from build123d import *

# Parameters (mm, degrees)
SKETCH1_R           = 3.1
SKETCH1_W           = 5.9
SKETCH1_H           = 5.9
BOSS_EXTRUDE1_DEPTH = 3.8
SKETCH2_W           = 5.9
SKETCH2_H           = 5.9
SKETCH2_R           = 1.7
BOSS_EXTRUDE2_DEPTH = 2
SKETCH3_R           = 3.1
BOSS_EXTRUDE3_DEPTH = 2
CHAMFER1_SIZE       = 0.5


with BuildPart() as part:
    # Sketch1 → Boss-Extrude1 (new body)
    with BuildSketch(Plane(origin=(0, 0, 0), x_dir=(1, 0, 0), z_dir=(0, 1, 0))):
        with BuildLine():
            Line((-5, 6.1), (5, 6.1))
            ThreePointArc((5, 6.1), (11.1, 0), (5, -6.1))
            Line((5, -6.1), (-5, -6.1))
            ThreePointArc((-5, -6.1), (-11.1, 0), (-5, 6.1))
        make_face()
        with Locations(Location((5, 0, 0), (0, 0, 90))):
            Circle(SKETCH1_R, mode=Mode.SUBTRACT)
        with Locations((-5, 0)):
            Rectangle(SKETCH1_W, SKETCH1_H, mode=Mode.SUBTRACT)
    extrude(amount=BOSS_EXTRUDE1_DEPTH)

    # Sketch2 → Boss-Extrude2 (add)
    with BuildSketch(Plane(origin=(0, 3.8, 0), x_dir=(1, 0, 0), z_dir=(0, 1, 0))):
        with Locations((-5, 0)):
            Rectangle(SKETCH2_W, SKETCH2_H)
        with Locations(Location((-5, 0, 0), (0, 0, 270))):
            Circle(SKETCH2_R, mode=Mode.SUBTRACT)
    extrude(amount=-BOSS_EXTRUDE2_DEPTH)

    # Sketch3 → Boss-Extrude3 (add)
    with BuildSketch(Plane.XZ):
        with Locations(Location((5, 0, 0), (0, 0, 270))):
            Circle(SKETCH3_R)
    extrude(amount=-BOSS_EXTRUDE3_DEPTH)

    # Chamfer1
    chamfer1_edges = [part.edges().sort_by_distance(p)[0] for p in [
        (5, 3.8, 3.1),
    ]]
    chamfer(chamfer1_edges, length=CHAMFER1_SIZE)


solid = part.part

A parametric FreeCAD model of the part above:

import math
import FreeCAD as App
import Part
import Sketcher
from FreeCAD import Vector
Q = App.Units.Quantity


def edges_at(feature, points):
    """Names of the edges that pass closest to the given points."""
    edges = feature.Shape.Edges
    near = lambda p: min(range(len(edges)), key=lambda i: edges[i].distToShape(Part.Vertex(*p))[0])
    return sorted({f"Edge{near(p) + 1}" for p in points})

doc = App.newDocument("Part")
body = doc.addObject("PartDesign::Body", "Body")

sketch1 = body.newObject("Sketcher::SketchObject", "Sketch")
sketch1.AttachmentSupport = (doc.getObject("XZ_Plane"), [""])
sketch1.MapMode = "FlatFace"
sketch1.addGeometry(Part.LineSegment(Vector(5, -6.1, 0), Vector(-5, -6.1, 0)), False)
sketch1.addGeometry(Part.ArcOfCircle(Part.Circle(Vector(-5, 0, 0), Vector(0, 0, 1), 6.1), math.radians(90), math.radians(270)), False)
sketch1.addGeometry(Part.LineSegment(Vector(-5, 6.1, 0), Vector(5, 6.1, 0)), False)
sketch1.addGeometry(Part.ArcOfCircle(Part.Circle(Vector(5, 0, 0), Vector(0, 0, 1), 6.1), math.radians(-90), math.radians(90)), False)
sketch1.addGeometry(Part.Circle(Vector(5, 0, 0), Vector(0, 0, 1), 3.1), False)
sketch1.addGeometry(Part.LineSegment(Vector(-8, 3, 0), Vector(-8, -3, 0)), False)
sketch1.addGeometry(Part.LineSegment(Vector(-8, -3, 0), Vector(-2, -3, 0)), False)
sketch1.addGeometry(Part.LineSegment(Vector(-2, -3, 0), Vector(-2, 3, 0)), False)
sketch1.addGeometry(Part.LineSegment(Vector(-2, 3, 0), Vector(-8, 3, 0)), False)
sketch1.addConstraint(Sketcher.Constraint("Tangent", 0, 2, 1, 2))
sketch1.addConstraint(Sketcher.Constraint("Tangent", 1, 1, 2, 1))
sketch1.addConstraint(Sketcher.Constraint("Tangent", 2, 2, 3, 2))
sketch1.addConstraint(Sketcher.Constraint("Tangent", 3, 1, 0, 1))
sketch1.addConstraint(Sketcher.Constraint("Coincident", 5, 2, 6, 1))
sketch1.addConstraint(Sketcher.Constraint("Coincident", 6, 2, 7, 1))
sketch1.addConstraint(Sketcher.Constraint("Coincident", 7, 2, 8, 1))
sketch1.addConstraint(Sketcher.Constraint("Coincident", 8, 2, 5, 1))
sketch1.addConstraint(Sketcher.Constraint("Horizontal", 0))
sketch1.addConstraint(Sketcher.Constraint("Horizontal", 2))
sketch1.addConstraint(Sketcher.Constraint("Vertical", 5))
sketch1.addConstraint(Sketcher.Constraint("Horizontal", 6))
sketch1.addConstraint(Sketcher.Constraint("Vertical", 7))
sketch1.addConstraint(Sketcher.Constraint("Horizontal", 8))
sketch1.addConstraint(Sketcher.Constraint("Coincident", 4, 3, 3, 3))
sketch1.addConstraint(Sketcher.Constraint("Symmetric", 1, 3, 3, 3, -1, 1))
sketch1.addConstraint(Sketcher.Constraint("Equal", 8, 5))
sketch1.addConstraint(Sketcher.Constraint("Diameter", 4, Q("6.2 mm")))
sketch1.addConstraint(Sketcher.Constraint("Radius", 1, Q("6.1 mm")))
sketch1.addConstraint(Sketcher.Constraint("DistanceX", 0, 2, 0, 1, Q("10 mm")))
sketch1.addConstraint(Sketcher.Constraint("DistanceX", 6, 1, 6, 2, Q("5.9 mm")))
sketch1.addConstraint(Sketcher.Constraint("DistanceX", 5, 2, -1, 1, Q("7.95 mm")))
sketch1.addConstraint(Sketcher.Constraint("DistanceY", 5, 2, -1, 1, Q("2.95 mm")))
pad1 = body.newObject("PartDesign::Pad", "Pad")
pad1.Profile = sketch1
pad1.Length = 3.8
pad1.Reversed = True

sketch2 = body.newObject("Sketcher::SketchObject", "Sketch001")
sketch2.AttachmentSupport = (doc.getObject("XZ_Plane"), [""])
sketch2.MapMode = "FlatFace"
sketch2.AttachmentOffset = App.Placement(Vector(0, 0, -3.8), App.Rotation())
sketch2.addGeometry(Part.LineSegment(Vector(-8, -3, 0), Vector(-8, 3, 0)), False)
sketch2.addGeometry(Part.LineSegment(Vector(-8, 3, 0), Vector(-2, 3, 0)), False)
sketch2.addGeometry(Part.LineSegment(Vector(-2, 3, 0), Vector(-2, -3, 0)), False)
sketch2.addGeometry(Part.LineSegment(Vector(-2, -3, 0), Vector(-8, -3, 0)), False)
sketch2.addGeometry(Part.Circle(Vector(-5, 0, 0), Vector(0, 0, 1), 1.7), False)
sketch2.addConstraint(Sketcher.Constraint("Coincident", 0, 2, 1, 1))
sketch2.addConstraint(Sketcher.Constraint("Coincident", 1, 2, 2, 1))
sketch2.addConstraint(Sketcher.Constraint("Coincident", 2, 2, 3, 1))
sketch2.addConstraint(Sketcher.Constraint("Coincident", 3, 2, 0, 1))
sketch2.addConstraint(Sketcher.Constraint("Vertical", 0))
sketch2.addConstraint(Sketcher.Constraint("Horizontal", 1))
sketch2.addConstraint(Sketcher.Constraint("Vertical", 2))
sketch2.addConstraint(Sketcher.Constraint("Horizontal", 3))
sketch2.addConstraint(Sketcher.Constraint("PointOnObject", 4, 3, -1))
sketch2.addConstraint(Sketcher.Constraint("Equal", 3, 0))
sketch2.addConstraint(Sketcher.Constraint("Diameter", 4, Q("3.4 mm")))
sketch2.addConstraint(Sketcher.Constraint("DistanceX", 1, 1, 1, 2, Q("5.9 mm")))
sketch2.addConstraint(Sketcher.Constraint("DistanceX", 4, 3, -1, 1, Q("5 mm")))
sketch2.addConstraint(Sketcher.Constraint("DistanceX", 0, 2, -1, 1, Q("7.95 mm")))
sketch2.addConstraint(Sketcher.Constraint("DistanceY", -1, 1, 0, 2, Q("2.95 mm")))
pad2 = body.newObject("PartDesign::Pad", "Pad001")
pad2.Profile = sketch2
pad2.Length = 2

sketch3 = body.newObject("Sketcher::SketchObject", "Sketch002")
sketch3.AttachmentSupport = (doc.getObject("XZ_Plane"), [""])
sketch3.MapMode = "FlatFace"
sketch3.addGeometry(Part.Circle(Vector(5, 0, 0), Vector(0, 0, 1), 3.1), False)
sketch3.addConstraint(Sketcher.Constraint("PointOnObject", 0, 3, -1))
sketch3.addConstraint(Sketcher.Constraint("Diameter", 0, Q("6.2 mm")))
sketch3.addConstraint(Sketcher.Constraint("DistanceX", -1, 1, 0, 3, Q("5 mm")))
pad3 = body.newObject("PartDesign::Pad", "Pad002")
pad3.Profile = sketch3
pad3.Length = 2
pad3.Reversed = True
doc.recompute()

chamfer = body.newObject("PartDesign::Chamfer", "Chamfer")
chamfer.Base = (pad3, edges_at(pad3, [(5, 3.8, 3.1)]))
chamfer.Size = 0.5

doc.recompute()
